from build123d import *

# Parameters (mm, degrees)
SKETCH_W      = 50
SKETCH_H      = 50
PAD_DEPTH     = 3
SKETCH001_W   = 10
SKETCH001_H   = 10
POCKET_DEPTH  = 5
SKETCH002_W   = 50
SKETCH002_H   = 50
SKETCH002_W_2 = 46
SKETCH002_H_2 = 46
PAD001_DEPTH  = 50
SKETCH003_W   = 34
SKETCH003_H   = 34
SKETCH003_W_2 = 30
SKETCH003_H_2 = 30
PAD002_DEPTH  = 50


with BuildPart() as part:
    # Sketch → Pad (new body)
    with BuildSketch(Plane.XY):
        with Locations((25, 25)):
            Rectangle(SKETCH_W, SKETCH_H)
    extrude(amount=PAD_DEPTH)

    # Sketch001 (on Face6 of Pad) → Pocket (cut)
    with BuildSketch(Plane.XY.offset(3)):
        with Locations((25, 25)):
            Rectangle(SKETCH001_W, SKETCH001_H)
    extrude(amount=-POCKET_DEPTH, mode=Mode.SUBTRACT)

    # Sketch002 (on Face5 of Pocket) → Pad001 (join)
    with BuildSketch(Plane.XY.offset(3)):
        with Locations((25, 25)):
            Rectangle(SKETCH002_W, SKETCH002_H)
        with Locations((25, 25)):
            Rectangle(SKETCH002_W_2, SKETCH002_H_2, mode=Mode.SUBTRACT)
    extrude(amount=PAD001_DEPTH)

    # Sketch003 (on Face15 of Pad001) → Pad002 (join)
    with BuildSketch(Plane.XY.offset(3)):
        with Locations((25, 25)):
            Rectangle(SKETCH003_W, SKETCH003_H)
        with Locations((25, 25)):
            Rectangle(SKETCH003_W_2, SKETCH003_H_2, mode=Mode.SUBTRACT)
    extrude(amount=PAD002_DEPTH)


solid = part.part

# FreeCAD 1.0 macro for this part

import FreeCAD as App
import Part
import Sketcher

V = App.Vector
Q = App.Units.Quantity

doc = App.newDocument("Part")
body = doc.addObject("PartDesign::Body", "Body")

# Sketch on XY plane
sketch1 = doc.addObject("Sketcher::SketchObject", "Sketch")
body.addObject(sketch1)
sketch1.AttachmentSupport = (doc.XY_Plane, [""])
sketch1.MapMode = "FlatFace"
sketch1.addGeometry(Part.LineSegment(V(0, 50, 0), V(0, 0, 0)), False)
sketch1.addGeometry(Part.LineSegment(V(0, 0, 0), V(50, 0, 0)), False)
sketch1.addGeometry(Part.LineSegment(V(50, 0, 0), V(50, 50, 0)), False)
sketch1.addGeometry(Part.LineSegment(V(50, 50, 0), V(0, 50, 0)), False)
sketch1.addConstraint(Sketcher.Constraint("Coincident", 0, 2, 1, 1))
sketch1.addConstraint(Sketcher.Constraint("Coincident", 1, 2, 2, 1))
sketch1.addConstraint(Sketcher.Constraint("Coincident", 2, 2, 3, 1))
sketch1.addConstraint(Sketcher.Constraint("Coincident", 3, 2, 0, 1))
sketch1.addConstraint(Sketcher.Constraint("Vertical", 0))
sketch1.addConstraint(Sketcher.Constraint("Horizontal", 1))
sketch1.addConstraint(Sketcher.Constraint("Vertical", 2))
sketch1.addConstraint(Sketcher.Constraint("Horizontal", 3))
sketch1.addConstraint(Sketcher.Constraint("Coincident", 0, 2, -1, 1))
sketch1.addConstraint(Sketcher.Constraint("Equal", 3, 0))
sketch1.addConstraint(Sketcher.Constraint("DistanceX", 1, 1, 1, 2, Q("50 mm")))
pad1 = doc.addObject("PartDesign::Pad", "Pad")
body.addObject(pad1)
pad1.Profile = sketch1
pad1.Length = 3

# Sketch on XY plane
sketch2 = doc.addObject("Sketcher::SketchObject", "Sketch001")
body.addObject(sketch2)
sketch2.AttachmentSupport = (doc.XY_Plane, [""])
sketch2.MapMode = "FlatFace"
sketch2.AttachmentOffset = App.Placement(V(0, 0, 3), App.Rotation())
sketch2.addGeometry(Part.LineSegment(V(20, 30, 0), V(20, 20, 0)), False)
sketch2.addGeometry(Part.LineSegment(V(20, 20, 0), V(30, 20, 0)), False)
sketch2.addGeometry(Part.LineSegment(V(30, 20, 0), V(30, 30, 0)), False)
sketch2.addGeometry(Part.LineSegment(V(30, 30, 0), V(20, 30, 0)), False)
sketch2.addConstraint(Sketcher.Constraint("Coincident", 0, 2, 1, 1))
sketch2.addConstraint(Sketcher.Constraint("Coincident", 1, 2, 2, 1))
sketch2.addConstraint(Sketcher.Constraint("Coincident", 2, 2, 3, 1))
sketch2.addConstraint(Sketcher.Constraint("Coincident", 3, 2, 0, 1))
sketch2.addConstraint(Sketcher.Constraint("Vertical", 0))
sketch2.addConstraint(Sketcher.Constraint("Horizontal", 1))
sketch2.addConstraint(Sketcher.Constraint("Vertical", 2))
sketch2.addConstraint(Sketcher.Constraint("Horizontal", 3))
sketch2.addConstraint(Sketcher.Constraint("Equal", 3, 0))
sketch2.addConstraint(Sketcher.Constraint("DistanceX", 1, 1, 1, 2, Q("10 mm")))
sketch2.addConstraint(Sketcher.Constraint("DistanceX", -1, 1, 0, 2, Q("20 mm")))
sketch2.addConstraint(Sketcher.Constraint("DistanceY", -1, 1, 0, 2, Q("20 mm")))
pocket1 = doc.addObject("PartDesign::Pocket", "Pocket")
body.addObject(pocket1)
pocket1.Profile = sketch2
pocket1.Length = 5

# Sketch on XY plane
sketch3 = doc.addObject("Sketcher::SketchObject", "Sketch002")
body.addObject(sketch3)
sketch3.AttachmentSupport = (doc.XY_Plane, [""])
sketch3.MapMode = "FlatFace"
sketch3.AttachmentOffset = App.Placement(V(0, 0, 3), App.Rotation())
sketch3.addGeometry(Part.LineSegment(V(0, 50, 0), V(0, 0, 0)), False)
sketch3.addGeometry(Part.LineSegment(V(0, 0, 0), V(50, 0, 0)), False)
sketch3.addGeometry(Part.LineSegment(V(50, 0, 0), V(50, 50, 0)), False)
sketch3.addGeometry(Part.LineSegment(V(50, 50, 0), V(0, 50, 0)), False)
sketch3.addGeometry(Part.LineSegment(V(48, 2, 0), V(2, 2, 0)), False)
sketch3.addGeometry(Part.LineSegment(V(2, 2, 0), V(2, 48, 0)), False)
sketch3.addGeometry(Part.LineSegment(V(2, 48, 0), V(48, 48, 0)), False)
sketch3.addGeometry(Part.LineSegment(V(48, 48, 0), V(48, 2, 0)), False)
sketch3.addConstraint(Sketcher.Constraint("Coincident", 0, 2, 1, 1))
sketch3.addConstraint(Sketcher.Constraint("Coincident", 1, 2, 2, 1))
sketch3.addConstraint(Sketcher.Constraint("Coincident", 2, 2, 3, 1))
sketch3.addConstraint(Sketcher.Constraint("Coincident", 3, 2, 0, 1))
sketch3.addConstraint(Sketcher.Constraint("Coincident", 4, 2, 5, 1))
sketch3.addConstraint(Sketcher.Constraint("Coincident", 5, 2, 6, 1))
sketch3.addConstraint(Sketcher.Constraint("Coincident", 6, 2, 7, 1))
sketch3.addConstraint(Sketcher.Constraint("Coincident", 7, 2, 4, 1))
sketch3.addConstraint(Sketcher.Constraint("Vertical", 0))
sketch3.addConstraint(Sketcher.Constraint("Horizontal", 1))
sketch3.addConstraint(Sketcher.Constraint("Vertical", 2))
sketch3.addConstraint(Sketcher.Constraint("Horizontal", 3))
sketch3.addConstraint(Sketcher.Constraint("Horizontal", 4))
sketch3.addConstraint(Sketcher.Constraint("Vertical", 5))
sketch3.addConstraint(Sketcher.Constraint("Horizontal", 6))
sketch3.addConstraint(Sketcher.Constraint("Vertical", 7))
sketch3.addConstraint(Sketcher.Constraint("Coincident", 0, 2, -1, 1))
sketch3.addConstraint(Sketcher.Constraint("Equal", 3, 0))
sketch3.addConstraint(Sketcher.Constraint("Equal", 6, 5))
sketch3.addConstraint(Sketcher.Constraint("DistanceX", 1, 1, 1, 2, Q("50 mm")))
sketch3.addConstraint(Sketcher.Constraint("DistanceX", 4, 2, 4, 1, Q("46 mm")))
sketch3.addConstraint(Sketcher.Constraint("DistanceX", -1, 1, 4, 2, Q("2 mm")))
sketch3.addConstraint(Sketcher.Constraint("DistanceY", -1, 1, 4, 2, Q("2 mm")))
pad2 = doc.addObject("PartDesign::Pad", "Pad001")
body.addObject(pad2)
pad2.Profile = sketch3
pad2.Length = 50

# Sketch on XY plane
sketch4 = doc.addObject("Sketcher::SketchObject", "Sketch003")
body.addObject(sketch4)
sketch4.AttachmentSupport = (doc.XY_Plane, [""])
sketch4.MapMode = "FlatFace"
sketch4.AttachmentOffset = App.Placement(V(0, 0, 3), App.Rotation())
sketch4.addGeometry(Part.LineSegment(V(8, 42, 0), V(8, 8, 0)), False)
sketch4.addGeometry(Part.LineSegment(V(8, 8, 0), V(42, 8, 0)), False)
sketch4.addGeometry(Part.LineSegment(V(42, 8, 0), V(42, 42, 0)), False)
sketch4.addGeometry(Part.LineSegment(V(42, 42, 0), V(8, 42, 0)), False)
sketch4.addGeometry(Part.LineSegment(V(40, 10, 0), V(10, 10, 0)), False)
sketch4.addGeometry(Part.LineSegment(V(10, 10, 0), V(10, 40, 0)), False)
sketch4.addGeometry(Part.LineSegment(V(10, 40, 0), V(40, 40, 0)), False)
sketch4.addGeometry(Part.LineSegment(V(40, 40, 0), V(40, 10, 0)), False)
sketch4.addConstraint(Sketcher.Constraint("Coincident", 0, 2, 1, 1))
sketch4.addConstraint(Sketcher.Constraint("Coincident", 1, 2, 2, 1))
sketch4.addConstraint(Sketcher.Constraint("Coincident", 2, 2, 3, 1))
sketch4.addConstraint(Sketcher.Constraint("Coincident", 3, 2, 0, 1))
sketch4.addConstraint(Sketcher.Constraint("Coincident", 4, 2, 5, 1))
sketch4.addConstraint(Sketcher.Constraint("Coincident", 5, 2, 6, 1))
sketch4.addConstraint(Sketcher.Constraint("Coincident", 6, 2, 7, 1))
sketch4.addConstraint(Sketcher.Constraint("Coincident", 7, 2, 4, 1))
sketch4.addConstraint(Sketcher.Constraint("Vertical", 0))
sketch4.addConstraint(Sketcher.Constraint("Horizontal", 1))
sketch4.addConstraint(Sketcher.Constraint("Vertical", 2))
sketch4.addConstraint(Sketcher.Constraint("Horizontal", 3))
sketch4.addConstraint(Sketcher.Constraint("Horizontal", 4))
sketch4.addConstraint(Sketcher.Constraint("Vertical", 5))
sketch4.addConstraint(Sketcher.Constraint("Horizontal", 6))
sketch4.addConstraint(Sketcher.Constraint("Vertical", 7))
sketch4.addConstraint(Sketcher.Constraint("Equal", 3, 0))
sketch4.addConstraint(Sketcher.Constraint("Equal", 6, 5))
sketch4.addConstraint(Sketcher.Constraint("DistanceX", 1, 1, 1, 2, Q("34 mm")))
sketch4.addConstraint(Sketcher.Constraint("DistanceX", 4, 2, 4, 1, Q("30 mm")))
sketch4.addConstraint(Sketcher.Constraint("DistanceX", -1, 1, 0, 2, Q("8 mm")))
sketch4.addConstraint(Sketcher.Constraint("DistanceY", -1, 1, 0, 2, Q("8 mm")))
sketch4.addConstraint(Sketcher.Constraint("DistanceX", -1, 1, 4, 2, Q("10 mm")))
sketch4.addConstraint(Sketcher.Constraint("DistanceY", -1, 1, 4, 2, Q("10 mm")))
pad3 = doc.addObject("PartDesign::Pad", "Pad002")
body.addObject(pad3)
pad3.Profile = sketch4
pad3.Length = 50

doc.recompute()
